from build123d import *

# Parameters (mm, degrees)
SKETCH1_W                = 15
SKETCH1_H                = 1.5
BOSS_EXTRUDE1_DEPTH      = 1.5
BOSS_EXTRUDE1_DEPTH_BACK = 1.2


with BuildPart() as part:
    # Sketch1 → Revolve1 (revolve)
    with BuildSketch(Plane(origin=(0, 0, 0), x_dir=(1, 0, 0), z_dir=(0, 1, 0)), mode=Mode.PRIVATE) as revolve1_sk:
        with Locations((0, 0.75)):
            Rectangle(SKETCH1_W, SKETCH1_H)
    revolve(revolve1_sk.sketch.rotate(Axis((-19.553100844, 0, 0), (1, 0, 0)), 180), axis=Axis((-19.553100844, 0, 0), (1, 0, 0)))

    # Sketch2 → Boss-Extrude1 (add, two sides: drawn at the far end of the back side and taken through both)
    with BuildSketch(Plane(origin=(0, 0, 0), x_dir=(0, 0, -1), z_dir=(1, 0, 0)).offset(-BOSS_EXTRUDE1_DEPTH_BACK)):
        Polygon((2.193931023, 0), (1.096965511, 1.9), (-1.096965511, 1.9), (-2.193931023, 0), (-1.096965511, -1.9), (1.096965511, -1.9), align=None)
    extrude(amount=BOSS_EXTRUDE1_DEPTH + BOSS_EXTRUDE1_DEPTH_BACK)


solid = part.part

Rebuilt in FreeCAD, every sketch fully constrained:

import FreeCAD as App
import Part
import Sketcher

V = App.Vector
Q = App.Units.Quantity

doc = App.newDocument("Part")
params = doc.addObject("Spreadsheet::Sheet", "Params")
for row, (alias, value) in enumerate([
    ("sketch1_width", "15 mm"),
    ("sketch1_height", "1.5 mm"),
    ("revolution_angle", "360 deg"),
    ("pad1_length", "1.5 mm"),
    ("pad1_length2", "1.2 mm"),
], start=1):
    params.set(f"A{row}", alias)
    params.set(f"B{row}", "=" + value)
    params.setAlias(f"B{row}", alias)

body = doc.addObject("PartDesign::Body", "Body")

# Sketch on XZ plane
sketch1 = body.newObject("Sketcher::SketchObject", "Sketch")
sketch1.AttachmentSupport = (doc.getObject("XZ_Plane"), [""])
sketch1.MapMode = "FlatFace"
sketch1.addGeometry([
    Part.LineSegment(V(-7.5, -1.5, 0), V(-7.5, 0, 0)),
    Part.LineSegment(V(-7.5, 0, 0), V(7.5, 0, 0)),
    Part.LineSegment(V(7.5, 0, 0), V(7.5, -1.5, 0)),
    Part.LineSegment(V(7.5, -1.5, 0), V(-7.5, -1.5, 0)),
], False)
sketch1.addConstraint([
    Sketcher.Constraint("Coincident", 0, 2, 1, 1),
    Sketcher.Constraint("Coincident", 1, 2, 2, 1),
    Sketcher.Constraint("Coincident", 2, 2, 3, 1),
    Sketcher.Constraint("Coincident", 3, 2, 0, 1),
    Sketcher.Constraint("Vertical", 0),
    Sketcher.Constraint("Horizontal", 1),
    Sketcher.Constraint("Vertical", 2),
    Sketcher.Constraint("Horizontal", 3),
    Sketcher.Constraint("Symmetric", 0, 2, 1, 2, -1, 1),
    Sketcher.Constraint("DistanceX", 1, 1, 1, 2, Q("15 mm")),
    Sketcher.Constraint("DistanceY", 0, 1, 0, 2, Q("1.5 mm")),
])
sketch1.setExpression("Constraints[9]", "Params.sketch1_width")
sketch1.setExpression("Constraints[10]", "Params.sketch1_height")
revolution = body.newObject("PartDesign::Revolution", "Revolution")
revolution.Profile = sketch1
revolution.ReferenceAxis = (sketch1, ["H_Axis"])
revolution.setExpression("Angle", "Params.revolution_angle")

# Sketch on YZ plane
sketch2 = body.newObject("Sketcher::SketchObject", "Sketch001")
sketch2.AttachmentSupport = (doc.getObject("YZ_Plane"), [""])
sketch2.MapMode = "FlatFace"
sketch2.addGeometry([
    Part.LineSegment(V(0, -2.193931, 0), V(1.9, -1.096966, 0)),  # 0
    Part.LineSegment(V(1.9, -1.096966, 0), V(1.9, 1.096966, 0)),  # 1
    Part.LineSegment(V(1.9, 1.096966, 0), V(0, 2.193931, 0)),  # 2
    Part.LineSegment(V(0, 2.193931, 0), V(-1.9, 1.096966, 0)),  # 3
    Part.LineSegment(V(-1.9, 1.096966, 0), V(-1.9, -1.096966, 0)),  # 4
    Part.LineSegment(V(-1.9, -1.096966, 0), V(0, -2.193931, 0)),  # 5
], False)
sketch2.addConstraint([
    Sketcher.Constraint("Coincident", 0, 2, 1, 1),
    Sketcher.Constraint("Coincident", 1, 2, 2, 1),
    Sketcher.Constraint("Coincident", 2, 2, 3, 1),
    Sketcher.Constraint("Coincident", 3, 2, 4, 1),
    Sketcher.Constraint("Coincident", 4, 2, 5, 1),
    Sketcher.Constraint("Coincident", 5, 2, 0, 1),
    Sketcher.Constraint("Vertical", 1),
    Sketcher.Constraint("Vertical", 4),
    Sketcher.Constraint("Symmetric", 0, 2, 3, 2, -1, 1),
    Sketcher.Constraint("Symmetric", 2, 2, 5, 2, -1, 1),
    Sketcher.Constraint("PointOnObject", 2, 2, -2),
    Sketcher.Constraint("Parallel", 2, 5),
    Sketcher.Constraint("Horizontal", 1, 2, 3, 2),
    Sketcher.Constraint("Angle", 0, Q("30 deg")),
    Sketcher.Constraint("DistanceX", -1, 1, 0, 2, Q("1.9 mm")),
    Sketcher.Constraint("DistanceY", 1, 1, 1, 2, Q("2.193931 mm")),
])
pad1 = body.newObject("PartDesign::Pad", "Pad")
pad1.Profile = sketch2
pad1.Type = "TwoLengths"
pad1.setExpression("Length", "Params.pad1_length")
pad1.setExpression("Length2", "Params.pad1_length2")

doc.recompute()
